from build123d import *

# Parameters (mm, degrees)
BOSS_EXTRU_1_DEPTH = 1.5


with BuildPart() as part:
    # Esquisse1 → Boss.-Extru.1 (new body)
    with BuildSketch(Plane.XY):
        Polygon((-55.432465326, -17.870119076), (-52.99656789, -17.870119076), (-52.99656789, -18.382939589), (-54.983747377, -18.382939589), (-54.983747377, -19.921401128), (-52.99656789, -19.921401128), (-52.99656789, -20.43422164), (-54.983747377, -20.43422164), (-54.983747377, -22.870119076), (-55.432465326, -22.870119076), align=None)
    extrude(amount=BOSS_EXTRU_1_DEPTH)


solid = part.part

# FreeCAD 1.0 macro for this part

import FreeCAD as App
import Part
import Sketcher

V = App.Vector

doc = App.newDocument("Part")
body = doc.addObject("PartDesign::Body", "Body")

# Sketch on XY plane
sketch1 = body.newObject("Sketcher::SketchObject", "Sketch")
sketch1.AttachmentSupport = (doc.getObject("XY_Plane"), [""])
sketch1.MapMode = "FlatFace"
sketch1.addGeometry(Part.LineSegment(V(-53, -17.87, 0), V(-55.43, -17.87, 0)), False)
sketch1.addGeometry(Part.LineSegment(V(-55.43, -17.87, 0), V(-55.43, -22.87, 0)), False)
sketch1.addGeometry(Part.LineSegment(V(-55.43, -22.87, 0), V(-54.98, -22.87, 0)), False)
sketch1.addGeometry(Part.LineSegment(V(-54.98, -22.87, 0), V(-54.98, -20.43, 0)), False)
sketch1.addGeometry(Part.LineSegment(V(-54.98, -20.43, 0), V(-53, -20.43, 0)), False)
sketch1.addGeometry(Part.LineSegment(V(-53, -20.43, 0), V(-53, -19.92, 0)), False)
sketch1.addGeometry(Part.LineSegment(V(-53, -19.92, 0), V(-54.98, -19.92, 0)), False)
sketch1.addGeometry(Part.LineSegment(V(-54.98, -19.92, 0), V(-54.98, -18.38, 0)), False)
sketch1.addGeometry(Part.LineSegment(V(-54.98, -18.38, 0), V(-53, -18.38, 0)), False)
sketch1.addGeometry(Part.LineSegment(V(-53, -18.38, 0), V(-53, -17.87, 0)), False)
sketch1.addConstraint(Sketcher.Constraint("Coincident", 0, 2, 1, 1))
sketch1.addConstraint(Sketcher.Constraint("Coincident", 1, 2, 2, 1))
sketch1.addConstraint(Sketcher.Constraint("Coincident", 2, 2, 3, 1))
sketch1.addConstraint(Sketcher.Constraint("Coincident", 3, 2, 4, 1))
sketch1.addConstraint(Sketcher.Constraint("Coincident", 4, 2, 5, 1))
sketch1.addConstraint(Sketcher.Constraint("Coincident", 5, 2, 6, 1))
sketch1.addConstraint(Sketcher.Constraint("Coincident", 6, 2, 7, 1))
sketch1.addConstraint(Sketcher.Constraint("Coincident", 7, 2, 8, 1))
sketch1.addConstraint(Sketcher.Constraint("Coincident", 8, 2, 9, 1))
sketch1.addConstraint(Sketcher.Constraint("Coincident", 9, 2, 0, 1))
sketch1.addConstraint(Sketcher.Constraint("Horizontal", 0))
sketch1.addConstraint(Sketcher.Constraint("Vertical", 1))
sketch1.addConstraint(Sketcher.Constraint("Horizontal", 2))
sketch1.addConstraint(Sketcher.Constraint("Vertical", 3))
sketch1.addConstraint(Sketcher.Constraint("Horizontal", 4))
sketch1.addConstraint(Sketcher.Constraint("Vertical", 5))
sketch1.addConstraint(Sketcher.Constraint("Horizontal", 6))
sketch1.addConstraint(Sketcher.Constraint("Vertical", 7))
sketch1.addConstraint(Sketcher.Constraint("Horizontal", 8))
sketch1.addConstraint(Sketcher.Constraint("Vertical", 9))
sketch1.addConstraint(Sketcher.Constraint("Vertical", 3, 2, 6, 2))
sketch1.addConstraint(Sketcher.Constraint("Vertical", 5, 2, 8, 2))
sketch1.addConstraint(Sketcher.Constraint("Equal", 0, 3))
sketch1.addConstraint(Sketcher.Constraint("Equal", 5, 9))
sketch1.addConstraint(Sketcher.Constraint("DistanceY", 1, 2, 1, 1, 5.0))
sketch1.addConstraint(Sketcher.Constraint("DistanceX", 4, 1, 4, 2, 1.987179))
sketch1.addConstraint(Sketcher.Constraint("DistanceY", 5, 1, 5, 2, 0.512821))
sketch1.addConstraint(Sketcher.Constraint("DistanceY", 7, 1, 7, 2, 1.538462))
sketch1.addConstraint(Sketcher.Constraint("DistanceY", 5, 2, -1, 1, 19.921401))
sketch1.addConstraint(Sketcher.Constraint("DistanceX", 0, 2, -1, 1, 55.432465))
pad1 = body.newObject("PartDesign::Pad", "Pad")
pad1.Profile = sketch1
pad1.Length = 1.5

doc.recompute()
